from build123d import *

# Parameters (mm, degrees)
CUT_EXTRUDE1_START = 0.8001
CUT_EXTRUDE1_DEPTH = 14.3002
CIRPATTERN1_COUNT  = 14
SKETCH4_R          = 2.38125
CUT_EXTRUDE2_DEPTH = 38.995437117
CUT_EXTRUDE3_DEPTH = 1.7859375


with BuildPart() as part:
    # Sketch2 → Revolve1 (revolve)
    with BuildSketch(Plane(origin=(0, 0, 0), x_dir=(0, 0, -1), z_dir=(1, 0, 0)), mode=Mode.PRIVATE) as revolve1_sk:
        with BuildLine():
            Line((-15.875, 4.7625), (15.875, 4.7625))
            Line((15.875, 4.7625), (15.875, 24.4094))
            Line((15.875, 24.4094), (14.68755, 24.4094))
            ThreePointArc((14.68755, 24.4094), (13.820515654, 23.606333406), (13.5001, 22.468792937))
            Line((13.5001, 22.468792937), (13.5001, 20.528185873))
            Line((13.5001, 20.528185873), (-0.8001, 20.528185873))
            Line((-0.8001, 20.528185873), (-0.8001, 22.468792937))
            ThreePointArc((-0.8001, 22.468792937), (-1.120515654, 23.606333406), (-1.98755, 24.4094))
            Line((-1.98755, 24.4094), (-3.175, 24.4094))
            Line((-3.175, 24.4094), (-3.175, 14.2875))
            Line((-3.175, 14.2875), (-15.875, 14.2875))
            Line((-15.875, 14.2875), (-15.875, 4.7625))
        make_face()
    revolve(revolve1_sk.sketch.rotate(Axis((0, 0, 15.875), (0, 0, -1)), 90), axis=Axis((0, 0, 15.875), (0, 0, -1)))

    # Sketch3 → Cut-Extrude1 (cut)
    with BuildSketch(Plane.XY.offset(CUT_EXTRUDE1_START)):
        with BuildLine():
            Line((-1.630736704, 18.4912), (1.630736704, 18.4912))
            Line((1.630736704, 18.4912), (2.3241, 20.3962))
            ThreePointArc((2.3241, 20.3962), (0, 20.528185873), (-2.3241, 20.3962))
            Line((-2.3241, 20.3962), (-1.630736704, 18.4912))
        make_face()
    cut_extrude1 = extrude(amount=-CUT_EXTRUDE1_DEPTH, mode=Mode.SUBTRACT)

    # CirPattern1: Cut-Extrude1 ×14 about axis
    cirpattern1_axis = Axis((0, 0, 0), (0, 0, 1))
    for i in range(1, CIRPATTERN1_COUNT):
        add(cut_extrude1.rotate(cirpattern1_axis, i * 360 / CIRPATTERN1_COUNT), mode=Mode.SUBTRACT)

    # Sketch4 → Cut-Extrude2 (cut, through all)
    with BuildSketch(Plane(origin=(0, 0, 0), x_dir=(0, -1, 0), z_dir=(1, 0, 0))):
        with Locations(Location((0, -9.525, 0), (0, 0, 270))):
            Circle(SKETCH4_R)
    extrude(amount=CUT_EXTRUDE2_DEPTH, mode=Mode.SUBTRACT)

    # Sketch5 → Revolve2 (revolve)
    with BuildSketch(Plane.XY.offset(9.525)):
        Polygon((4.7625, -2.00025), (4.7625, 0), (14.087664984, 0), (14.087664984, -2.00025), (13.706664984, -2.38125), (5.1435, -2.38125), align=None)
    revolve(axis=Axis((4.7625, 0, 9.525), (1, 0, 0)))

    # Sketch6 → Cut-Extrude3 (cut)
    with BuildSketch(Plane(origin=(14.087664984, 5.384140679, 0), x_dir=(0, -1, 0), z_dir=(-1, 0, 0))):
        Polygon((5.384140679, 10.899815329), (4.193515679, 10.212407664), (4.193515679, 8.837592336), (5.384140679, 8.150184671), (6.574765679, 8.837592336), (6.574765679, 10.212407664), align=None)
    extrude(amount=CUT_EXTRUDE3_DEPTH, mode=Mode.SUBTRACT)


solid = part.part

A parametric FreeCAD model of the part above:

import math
import FreeCAD as App
import Part
import Sketcher
from FreeCAD import Vector
Q = App.Units.Quantity


def add_polygon(sketch, points):
    """Adds a closed chain of lines whose ends are joined by coincident constraints."""
    first, n = sketch.GeometryCount, len(points)
    for a, b in zip(points, points[1:] + points[:1]):
        sketch.addGeometry(Part.LineSegment(App.Vector(*a, 0), App.Vector(*b, 0)), False)
    for i in range(n):
        sketch.addConstraint(Sketcher.Constraint("Coincident", first + i, 2, first + (i + 1) % n, 1))

doc = App.newDocument("Part")
body = doc.addObject("PartDesign::Body", "Body")

# Sketch on YZ plane
sketch1 = body.newObject("Sketcher::SketchObject", "Sketch")
sketch1.AttachmentSupport = (doc.getObject("YZ_Plane"), [""])
sketch1.MapMode = "FlatFace"
sketch1.addGeometry(Part.LineSegment(Vector(4.8, 15.9, 0), Vector(4.8, -15.9, 0)), False)
sketch1.addGeometry(Part.LineSegment(Vector(4.8, -15.9, 0), Vector(24.4, -15.9, 0)), False)
sketch1.addGeometry(Part.LineSegment(Vector(24.4, -15.9, 0), Vector(24.4, -14.7, 0)), False)
sketch1.addGeometry(Part.ArcOfCircle(Part.Circle(Vector(22.5, -15.7, 0), Vector(0, 0, 1), 2.2), math.radians(27), math.radians(90)), False)
sketch1.addGeometry(Part.LineSegment(Vector(22.5, -13.5, 0), Vector(20.5, -13.5, 0)), False)
sketch1.addGeometry(Part.LineSegment(Vector(20.5, -13.5, 0), Vector(20.5, 0.8, 0)), False)
sketch1.addGeometry(Part.LineSegment(Vector(20.5, 0.8, 0), Vector(22.5, 0.8, 0)), False)
sketch1.addGeometry(Part.ArcOfCircle(Part.Circle(Vector(22.5, 3, 0), Vector(0, 0, 1), 2.2), math.radians(-90), math.radians(-27)), False)
sketch1.addGeometry(Part.LineSegment(Vector(24.4, 2, 0), Vector(24.4, 3.2, 0)), False)
sketch1.addGeometry(Part.LineSegment(Vector(24.4, 3.2, 0), Vector(14.3, 3.2, 0)), False)
sketch1.addGeometry(Part.LineSegment(Vector(14.3, 3.2, 0), Vector(14.3, 15.9, 0)), False)
sketch1.addGeometry(Part.LineSegment(Vector(14.3, 15.9, 0), Vector(4.8, 15.9, 0)), False)
sketch1.addConstraint(Sketcher.Constraint("Coincident", 0, 2, 1, 1))
sketch1.addConstraint(Sketcher.Constraint("Coincident", 1, 2, 2, 1))
sketch1.addConstraint(Sketcher.Constraint("Coincident", 2, 2, 3, 1))
sketch1.addConstraint(Sketcher.Constraint("Tangent", 3, 2, 4, 1))
sketch1.addConstraint(Sketcher.Constraint("Coincident", 4, 2, 5, 1))
sketch1.addConstraint(Sketcher.Constraint("Coincident", 5, 2, 6, 1))
sketch1.addConstraint(Sketcher.Constraint("Tangent", 6, 2, 7, 1))
sketch1.addConstraint(Sketcher.Constraint("Coincident", 7, 2, 8, 1))
sketch1.addConstraint(Sketcher.Constraint("Coincident", 8, 2, 9, 1))
sketch1.addConstraint(Sketcher.Constraint("Coincident", 9, 2, 10, 1))
sketch1.addConstraint(Sketcher.Constraint("Coincident", 10, 2, 11, 1))
sketch1.addConstraint(Sketcher.Constraint("Coincident", 11, 2, 0, 1))
sketch1.addConstraint(Sketcher.Constraint("Vertical", 0))
sketch1.addConstraint(Sketcher.Constraint("Horizontal", 1))
sketch1.addConstraint(Sketcher.Constraint("Vertical", 2))
sketch1.addConstraint(Sketcher.Constraint("Horizontal", 4))
sketch1.addConstraint(Sketcher.Constraint("Vertical", 5))
sketch1.addConstraint(Sketcher.Constraint("Horizontal", 6))
sketch1.addConstraint(Sketcher.Constraint("Vertical", 8))
sketch1.addConstraint(Sketcher.Constraint("Horizontal", 9))
sketch1.addConstraint(Sketcher.Constraint("Vertical", 10))
sketch1.addConstraint(Sketcher.Constraint("Horizontal", 11))
sketch1.addConstraint(Sketcher.Constraint("Equal", 3, 7))
sketch1.addConstraint(Sketcher.Constraint("Vertical", 3, 3, 7, 3))
sketch1.addConstraint(Sketcher.Constraint("Vertical", 2, 2, 7, 2))
sketch1.addConstraint(Sketcher.Constraint("Equal", 2, 8))
sketch1.addConstraint(Sketcher.Constraint("DistanceY", 10, 1, 10, 2, Q("0.5 in")))
sketch1.addConstraint(Sketcher.Constraint("DistanceY", 0, 2, 0, 1, Q("1.25 in")))
sketch1.addConstraint(Sketcher.Constraint("DistanceX", 11, 2, 11, 1, Q("0.375 in")))
sketch1.addConstraint(Sketcher.Constraint("DistanceY", 5, 1, 5, 2, Q("0.563 in")))
sketch1.addConstraint(Sketcher.Constraint("DistanceX", 1, 1, 1, 2, Q("0.7735 in")))
sketch1.addConstraint(Sketcher.Constraint("DistanceX", -1, 1, 0, 2, Q("0.1875 in")))
sketch1.addConstraint(Sketcher.Constraint("DistanceY", 0, 2, -1, 1, Q("0.625 in")))
sketch1.addConstraint(Sketcher.Constraint("Radius", 3, Q("2.179457 mm")))
sketch1.addConstraint(Sketcher.Constraint("DistanceY", 2, 1, 2, 2, Q("1.18745 mm")))
sketch1.addConstraint(Sketcher.Constraint("DistanceX", 4, 2, 4, 1, Q("1.940607 mm")))
revolution = body.newObject("PartDesign::Revolution", "Revolution")
revolution.Profile = sketch1
revolution.ReferenceAxis = (sketch1, ["V_Axis"])
revolution.Angle = 360

# Sketch on XY plane
sketch2 = body.newObject("Sketcher::SketchObject", "Sketch001")
sketch2.AttachmentSupport = (doc.getObject("XY_Plane"), [""])
sketch2.MapMode = "FlatFace"
sketch2.AttachmentOffset = App.Placement(Vector(0, 0, 0.0315 * 25.4), App.Rotation())
sketch2.addGeometry(Part.LineSegment(Vector(-1.6, 18.5, 0), Vector(1.6, 18.5, 0)), False)
sketch2.addGeometry(Part.LineSegment(Vector(1.6, 18.5, 0), Vector(2.3, 20.4, 0)), False)
sketch2.addGeometry(Part.ArcOfCircle(Part.Circle(Vector(0, 0, 0), Vector(0, 0, 1), 20.5), math.radians(83.5), math.radians(96.5)), False)
sketch2.addGeometry(Part.LineSegment(Vector(-2.3, 20.4, 0), Vector(-1.6, 18.5, 0)), False)
sketch2.addConstraint(Sketcher.Constraint("Coincident", 0, 2, 1, 1))
sketch2.addConstraint(Sketcher.Constraint("Coincident", 1, 2, 2, 1))
sketch2.addConstraint(Sketcher.Constraint("Coincident", 2, 2, 3, 1))
sketch2.addConstraint(Sketcher.Constraint("Coincident", 3, 2, 0, 1))
sketch2.addConstraint(Sketcher.Constraint("Horizontal", 0))
sketch2.addConstraint(Sketcher.Constraint("Coincident", 2, 3, -1, 1))
sketch2.addConstraint(Sketcher.Constraint("Horizontal", 1, 2, 2, 2))
sketch2.addConstraint(Sketcher.Constraint("Equal", 1, 3))
sketch2.addConstraint(Sketcher.Constraint("Angle", 1, Q("70 deg")))
sketch2.addConstraint(Sketcher.Constraint("DistanceY", -1, 1, 0, 2, Q("0.728 in")))
sketch2.addConstraint(Sketcher.Constraint("DistanceY", -1, 1, 1, 2, Q("0.803 in")))
sketch2.addConstraint(Sketcher.Constraint("DistanceX", 2, 2, 1, 2, Q("0.183 in")))
pocket1 = body.newObject("PartDesign::Pocket", "Pocket")
pocket1.Profile = sketch2
pocket1.Length = Q("0.563 in")
doc.recompute()

polarpattern = body.newObject("PartDesign::PolarPattern", "PolarPattern")
polarpattern.Originals = [pocket1]
polarpattern.Axis = (doc.getObject("Z_Axis"), [""])
polarpattern.Angle = 360
polarpattern.Occurrences = 14
body.Tip = polarpattern

# Sketch on YZ plane
sketch3 = body.newObject("Sketcher::SketchObject", "Sketch002")
sketch3.AttachmentSupport = (doc.getObject("YZ_Plane"), [""])
sketch3.MapMode = "FlatFace"
sketch3.addGeometry(Part.Circle(Vector(0, 9.5, 0), Vector(0, 0, 1), 2.4), False)
sketch3.addConstraint(Sketcher.Constraint("PointOnObject", 0, 3, -2))
sketch3.addConstraint(Sketcher.Constraint("Diameter", 0, Q("0.1875 in")))
sketch3.addConstraint(Sketcher.Constraint("DistanceY", -1, 1, 0, 3, Q("0.375 in")))
pocket2 = body.newObject("PartDesign::Pocket", "Pocket001")
pocket2.Profile = sketch3
pocket2.Type = "ThroughAll"
pocket2.Reversed = True

# Sketch on XY plane
sketch4 = body.newObject("Sketcher::SketchObject", "Sketch003")
sketch4.AttachmentSupport = (doc.getObject("XY_Plane"), [""])
sketch4.MapMode = "FlatFace"
sketch4.AttachmentOffset = App.Placement(Vector(0, 0, 0.375 * 25.4), App.Rotation())
add_polygon(sketch4, [(4.8, 0), (4.8, -2), (5.1, -2.4), (13.7, -2.4), (14.1, -2), (14.1, 0)])  # lines 0-5
sketch4.addConstraint(Sketcher.Constraint("Vertical", 0))
sketch4.addConstraint(Sketcher.Constraint("Horizontal", 2))
sketch4.addConstraint(Sketcher.Constraint("Vertical", 4))
sketch4.addConstraint(Sketcher.Constraint("Horizontal", 5))
sketch4.addConstraint(Sketcher.Constraint("PointOnObject", 4, 2, -1))
sketch4.addConstraint(Sketcher.Constraint("Perpendicular", 1, 3))
sketch4.addConstraint(Sketcher.Constraint("Horizontal", 0, 2, 3, 2))
sketch4.addConstraint(Sketcher.Constraint("Equal", 1, 3))
sketch4.addConstraint(Sketcher.Constraint("DistanceX", -1, 1, 0, 2, Q("0.1875 in")))
sketch4.addConstraint(Sketcher.Constraint("DistanceY", 1, 2, -1, 1, Q("0.09375 in")))
sketch4.addConstraint(Sketcher.Constraint("DistanceX", 0, 2, 1, 2, Q("0.015 in")))
sketch4.addConstraint(Sketcher.Constraint("DistanceX", 2, 1, 2, 2, Q("8.563165 mm")))
revolution2 = body.newObject("PartDesign::Revolution", "Revolution001")
revolution2.Profile = sketch4
revolution2.ReferenceAxis = (sketch4, ["H_Axis"])
revolution2.Angle = 360

# Sketch on YZ plane
sketch5 = body.newObject("Sketcher::SketchObject", "Sketch004")
sketch5.AttachmentSupport = (doc.getObject("YZ_Plane"), [""])
sketch5.MapMode = "FlatFace"
sketch5.AttachmentOffset = App.Placement(Vector(0, 0, 14.087665), App.Rotation())
add_polygon(sketch5, [(0, 10.9), (1.2, 10.2), (1.2, 8.8), (0, 8.2), (-1.2, 8.8), (-1.2, 10.2)])  # lines 0-5
sketch5.addConstraint(Sketcher.Constraint("Vertical", 1))
sketch5.addConstraint(Sketcher.Constraint("Vertical", 4))
sketch5.addConstraint(Sketcher.Constraint("Symmetric", 1, 2, 3, 2, -2))
sketch5.addConstraint(Sketcher.Constraint("PointOnObject", 2, 2, -2))
sketch5.addConstraint(Sketcher.Constraint("PointOnObject", 5, 2, -2))
sketch5.addConstraint(Sketcher.Constraint("Parallel", 0, 3))
sketch5.addConstraint(Sketcher.Constraint("Parallel", 2, 5))
sketch5.addConstraint(Sketcher.Constraint("Angle", 0, Q("-30 deg")))
sketch5.addConstraint(Sketcher.Constraint("DistanceX", -1, 1, 0, 2, Q("0.046875 in")))
sketch5.addConstraint(Sketcher.Constraint("DistanceY", 1, 2, 1, 1, Q("1.374815 mm")))
sketch5.addConstraint(Sketcher.Constraint("DistanceY", -1, 1, 0, 2, Q("10.212408 mm")))
pocket3 = body.newObject("PartDesign::Pocket", "Pocket002")
pocket3.Profile = sketch5
pocket3.Length = 1.785937

doc.recompute()
